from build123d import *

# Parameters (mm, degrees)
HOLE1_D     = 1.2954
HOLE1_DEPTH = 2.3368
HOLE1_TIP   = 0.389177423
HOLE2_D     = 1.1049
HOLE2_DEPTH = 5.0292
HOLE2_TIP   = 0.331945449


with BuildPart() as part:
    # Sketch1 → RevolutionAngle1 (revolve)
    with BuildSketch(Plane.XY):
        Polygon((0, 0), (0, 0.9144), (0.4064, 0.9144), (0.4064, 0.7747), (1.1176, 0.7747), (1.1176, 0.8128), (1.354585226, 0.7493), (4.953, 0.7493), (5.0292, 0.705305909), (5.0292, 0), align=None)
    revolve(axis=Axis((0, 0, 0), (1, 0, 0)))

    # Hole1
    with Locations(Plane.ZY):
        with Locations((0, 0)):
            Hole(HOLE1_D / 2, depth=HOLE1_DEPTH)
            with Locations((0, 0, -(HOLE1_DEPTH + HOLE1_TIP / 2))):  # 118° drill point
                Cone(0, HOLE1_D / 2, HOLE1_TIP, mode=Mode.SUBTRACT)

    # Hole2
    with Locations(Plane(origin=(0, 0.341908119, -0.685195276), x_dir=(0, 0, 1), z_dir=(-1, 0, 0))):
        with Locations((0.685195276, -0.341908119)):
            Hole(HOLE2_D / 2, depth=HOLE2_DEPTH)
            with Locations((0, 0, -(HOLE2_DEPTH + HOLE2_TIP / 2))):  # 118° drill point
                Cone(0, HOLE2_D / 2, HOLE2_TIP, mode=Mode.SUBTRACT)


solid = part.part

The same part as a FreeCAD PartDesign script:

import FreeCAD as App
import Part
import Sketcher

V = App.Vector
Q = App.Units.Quantity

doc = App.newDocument("Part")
body = doc.addObject("PartDesign::Body", "Body")

sketch1 = body.newObject("Sketcher::SketchObject", "Sketch")
sketch1.AttachmentSupport = (doc.getObject("XY_Plane"), [""])
sketch1.MapMode = "FlatFace"
sketch1.addGeometry([
    Part.LineSegment(V(0, 0.914, 0), V(0, 0, 0)),
    Part.LineSegment(V(0, 0, 0), V(5.029, 0, 0)),
    Part.LineSegment(V(5.029, 0, 0), V(5.029, 0.705, 0)),
    Part.LineSegment(V(5.029, 0.705, 0), V(4.953, 0.749, 0)),
    Part.LineSegment(V(4.953, 0.749, 0), V(1.355, 0.749, 0)),
    Part.LineSegment(V(1.355, 0.749, 0), V(1.118, 0.813, 0)),
    Part.LineSegment(V(1.118, 0.813, 0), V(1.118, 0.775, 0)),
    Part.LineSegment(V(1.118, 0.775, 0), V(0.406, 0.775, 0)),
    Part.LineSegment(V(0.406, 0.775, 0), V(0.406, 0.914, 0)),
    Part.LineSegment(V(0.406, 0.914, 0), V(0, 0.914, 0)),
], False)
sketch1.addConstraint([
    Sketcher.Constraint("Coincident", 0, 2, 1, 1),
    Sketcher.Constraint("Coincident", 1, 2, 2, 1),
    Sketcher.Constraint("Coincident", 2, 2, 3, 1),
    Sketcher.Constraint("Coincident", 3, 2, 4, 1),
    Sketcher.Constraint("Coincident", 4, 2, 5, 1),
    Sketcher.Constraint("Coincident", 5, 2, 6, 1),
    Sketcher.Constraint("Coincident", 6, 2, 7, 1),
    Sketcher.Constraint("Coincident", 7, 2, 8, 1),
    Sketcher.Constraint("Coincident", 8, 2, 9, 1),
    Sketcher.Constraint("Coincident", 9, 2, 0, 1),
    Sketcher.Constraint("Vertical", 0),
    Sketcher.Constraint("Horizontal", 1),
    Sketcher.Constraint("Vertical", 2),
    Sketcher.Constraint("Horizontal", 4),
    Sketcher.Constraint("Vertical", 6),
    Sketcher.Constraint("Horizontal", 7),
    Sketcher.Constraint("Vertical", 8),
    Sketcher.Constraint("Horizontal", 9),
    Sketcher.Constraint("Coincident", 0, 2, -1, 1),
    Sketcher.Constraint("Angle", 3, Q("150 deg")),
    Sketcher.Constraint("Angle", 5, Q("165 deg")),
    Sketcher.Constraint("DistanceX", 1, 1, 1, 2, Q("0.198 in")),
    Sketcher.Constraint("DistanceX", 7, 2, 7, 1, Q("0.028 in")),
    Sketcher.Constraint("DistanceX", 9, 2, 9, 1, Q("0.016 in")),
    Sketcher.Constraint("DistanceY", 0, 2, 0, 1, Q("0.036 in")),
    Sketcher.Constraint("DistanceY", 6, 2, 6, 1, Q("0.0015 in")),
    Sketcher.Constraint("DistanceY", 8, 1, 8, 2, Q("0.0055 in")),
    Sketcher.Constraint("DistanceX", -1, 1, 3, 2, Q("0.195 in")),
    Sketcher.Constraint("DistanceY", 4, 2, 6, 2, Q("0.001 in")),
])
revolution = body.newObject("PartDesign::Revolution", "Revolution")
revolution.Profile = sketch1
revolution.ReferenceAxis = (sketch1, ["H_Axis"])
revolution.Angle = 360

sketch2 = body.newObject("Sketcher::SketchObject", "Sketch001")
sketch2.AttachmentSupport = (doc.getObject("YZ_Plane"), [""])
sketch2.MapMode = "FlatFace"
sketch2.addGeometry(Part.Circle(V(0, 0, 0), V(0, 0, 1), 0.6), False)
sketch2.addConstraint([
    Sketcher.Constraint("Coincident", 0, 3, -1, 1),
    Sketcher.Constraint("Diameter", 0, Q("0.051 in")),
])
doc.recompute()
hole = body.newObject("PartDesign::Hole", "Hole")
hole.Profile = sketch2
hole.ThreadType = "None"
hole.Diameter = Q("0.051 in")
hole.DepthType = "Dimension"
hole.Depth = Q("0.092 in")
hole.DrillPoint = "Angled"
hole.DrillPointAngle = 118
hole.Reversed = True

sketch3 = body.newObject("Sketcher::SketchObject", "Sketch002")
sketch3.AttachmentSupport = (doc.getObject("YZ_Plane"), [""])
sketch3.MapMode = "FlatFace"
sketch3.addGeometry(Part.Circle(V(0, 0, 0), V(0, 0, 1), 0.6), False)
sketch3.addConstraint([
    Sketcher.Constraint("Coincident", 0, 3, -1, 1),
    Sketcher.Constraint("Diameter", 0, Q("0.0435 in")),
])
doc.recompute()
hole2 = body.newObject("PartDesign::Hole", "Hole001")
hole2.Profile = sketch3
hole2.ThreadType = "None"
hole2.Diameter = Q("0.0435 in")
hole2.DepthType = "Dimension"
hole2.Depth = Q("0.198 in")
hole2.DrillPoint = "Angled"
hole2.DrillPointAngle = 118
hole2.Reversed = True

doc.recompute()
